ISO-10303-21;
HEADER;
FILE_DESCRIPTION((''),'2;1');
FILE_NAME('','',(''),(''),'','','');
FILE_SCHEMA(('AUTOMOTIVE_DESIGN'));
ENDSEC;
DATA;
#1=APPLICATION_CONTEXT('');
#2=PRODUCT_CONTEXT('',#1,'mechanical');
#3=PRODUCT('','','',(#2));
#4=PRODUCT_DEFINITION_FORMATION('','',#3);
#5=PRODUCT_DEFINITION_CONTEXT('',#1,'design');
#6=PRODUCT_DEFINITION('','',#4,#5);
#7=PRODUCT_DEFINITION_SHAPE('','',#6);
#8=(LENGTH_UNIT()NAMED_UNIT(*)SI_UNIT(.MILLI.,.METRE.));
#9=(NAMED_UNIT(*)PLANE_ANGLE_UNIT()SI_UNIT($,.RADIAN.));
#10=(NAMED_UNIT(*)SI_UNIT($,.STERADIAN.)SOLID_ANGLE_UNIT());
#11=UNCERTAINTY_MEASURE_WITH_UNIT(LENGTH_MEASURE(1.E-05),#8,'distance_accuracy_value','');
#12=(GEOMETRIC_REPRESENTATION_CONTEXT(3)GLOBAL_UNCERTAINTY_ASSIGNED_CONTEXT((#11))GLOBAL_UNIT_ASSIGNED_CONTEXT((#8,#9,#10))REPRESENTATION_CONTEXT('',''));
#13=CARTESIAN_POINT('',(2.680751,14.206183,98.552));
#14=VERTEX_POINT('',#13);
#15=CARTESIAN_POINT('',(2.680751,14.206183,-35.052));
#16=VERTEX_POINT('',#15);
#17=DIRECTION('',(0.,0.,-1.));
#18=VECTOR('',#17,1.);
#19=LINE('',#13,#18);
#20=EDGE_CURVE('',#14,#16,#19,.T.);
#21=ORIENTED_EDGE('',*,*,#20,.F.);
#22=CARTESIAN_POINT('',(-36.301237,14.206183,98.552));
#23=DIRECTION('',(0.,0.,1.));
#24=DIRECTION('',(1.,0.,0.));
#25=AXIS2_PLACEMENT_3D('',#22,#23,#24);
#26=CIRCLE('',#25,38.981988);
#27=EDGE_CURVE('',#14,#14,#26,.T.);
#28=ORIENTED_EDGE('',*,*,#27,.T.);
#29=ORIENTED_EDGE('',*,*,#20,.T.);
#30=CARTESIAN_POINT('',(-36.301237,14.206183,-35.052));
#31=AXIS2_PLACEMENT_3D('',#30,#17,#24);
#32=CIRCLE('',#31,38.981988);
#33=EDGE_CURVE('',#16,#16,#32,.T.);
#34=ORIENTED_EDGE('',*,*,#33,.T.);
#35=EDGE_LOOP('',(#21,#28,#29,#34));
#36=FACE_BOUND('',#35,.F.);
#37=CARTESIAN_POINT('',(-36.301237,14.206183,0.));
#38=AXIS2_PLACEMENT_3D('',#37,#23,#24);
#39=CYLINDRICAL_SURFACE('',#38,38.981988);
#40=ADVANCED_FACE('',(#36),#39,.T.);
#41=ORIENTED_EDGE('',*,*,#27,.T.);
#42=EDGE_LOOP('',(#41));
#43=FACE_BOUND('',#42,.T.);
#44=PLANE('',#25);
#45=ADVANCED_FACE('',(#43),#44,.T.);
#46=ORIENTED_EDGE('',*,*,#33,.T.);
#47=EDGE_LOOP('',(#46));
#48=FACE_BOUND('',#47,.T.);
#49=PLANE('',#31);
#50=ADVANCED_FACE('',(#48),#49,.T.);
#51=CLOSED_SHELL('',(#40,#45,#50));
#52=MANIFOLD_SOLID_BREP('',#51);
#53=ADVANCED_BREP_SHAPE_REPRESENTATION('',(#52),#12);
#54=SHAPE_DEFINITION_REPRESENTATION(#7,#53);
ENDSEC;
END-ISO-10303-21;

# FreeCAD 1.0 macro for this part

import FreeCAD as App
import Part
import Sketcher

doc = App.newDocument("Part")
params = doc.addObject("Spreadsheet::Sheet", "Params")
for row, (alias, value) in enumerate([
    ("pad1_length", "3.88 in"),
    ("pad2_length", "1.38 in"),
], start=1):
    params.set(f"A{row}", alias)
    params.set(f"B{row}", "=" + value)
    params.setAlias(f"B{row}", alias)

body = doc.addObject("PartDesign::Body", "Body")

sketch1 = body.newObject("Sketcher::SketchObject", "Sketch")
sketch1.AttachmentSupport = (doc.getObject("XY_Plane"), [""])
sketch1.MapMode = "FlatFace"
sketch1.addGeometry(Part.Circle(App.Vector(-36, 14, 0), App.Vector(0, 0, 1), 39), False)
sketch1.addConstraint(Sketcher.Constraint("Diameter", 0, 77.963976))
sketch1.addConstraint(Sketcher.Constraint("DistanceX", 0, 3, -1, 1, 36.301237))
sketch1.addConstraint(Sketcher.Constraint("DistanceY", -1, 1, 0, 3, 14.206183))
pad1 = body.newObject("PartDesign::Pad", "Pad")
pad1.Profile = sketch1
pad1.setExpression("Length", "Params.pad1_length")

sketch2 = body.newObject("Sketcher::SketchObject", "Sketch001")
sketch2.AttachmentSupport = (doc.getObject("XY_Plane"), [""])
sketch2.MapMode = "FlatFace"
sketch2.addGeometry(Part.Circle(App.Vector(-36, 14, 0), App.Vector(0, 0, 1), 39), False)
sketch2.addConstraint(Sketcher.Constraint("Diameter", 0, 77.963976))
sketch2.addConstraint(Sketcher.Constraint("DistanceX", 0, 3, -1, 1, 36.301237))
sketch2.addConstraint(Sketcher.Constraint("DistanceY", -1, 1, 0, 3, 14.206183))
pad2 = body.newObject("PartDesign::Pad", "Pad001")
pad2.Profile = sketch2
pad2.setExpression("Length", "Params.pad2_length")
pad2.Reversed = True

doc.recompute()
